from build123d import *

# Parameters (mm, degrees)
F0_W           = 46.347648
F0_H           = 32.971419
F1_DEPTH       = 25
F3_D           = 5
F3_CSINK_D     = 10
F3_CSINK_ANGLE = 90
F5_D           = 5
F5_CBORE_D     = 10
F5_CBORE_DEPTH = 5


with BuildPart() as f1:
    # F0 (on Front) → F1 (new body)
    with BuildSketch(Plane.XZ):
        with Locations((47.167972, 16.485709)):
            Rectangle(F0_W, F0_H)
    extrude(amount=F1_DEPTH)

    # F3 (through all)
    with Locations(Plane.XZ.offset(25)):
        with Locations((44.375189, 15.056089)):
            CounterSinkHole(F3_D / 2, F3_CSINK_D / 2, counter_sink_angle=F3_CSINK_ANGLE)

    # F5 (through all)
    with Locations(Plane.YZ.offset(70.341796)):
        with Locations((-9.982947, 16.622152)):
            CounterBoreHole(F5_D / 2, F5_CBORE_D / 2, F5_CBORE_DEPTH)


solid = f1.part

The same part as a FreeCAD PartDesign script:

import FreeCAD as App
import Part
import Sketcher
from FreeCAD import Vector
Q = App.Units.Quantity


def add_polygon(sketch, points):
    """Adds a closed chain of lines whose ends are joined by coincident constraints."""
    first, n = sketch.GeometryCount, len(points)
    for a, b in zip(points, points[1:] + points[:1]):
        sketch.addGeometry(Part.LineSegment(App.Vector(*a, 0), App.Vector(*b, 0)), False)
    for i in range(n):
        sketch.addConstraint(Sketcher.Constraint("Coincident", first + i, 2, first + (i + 1) % n, 1))

doc = App.newDocument("Part")
body = doc.addObject("PartDesign::Body", "Body")

sketch1 = body.newObject("Sketcher::SketchObject", "Sketch")
sketch1.AttachmentSupport = (doc.getObject("XZ_Plane"), [""])
sketch1.MapMode = "FlatFace"
add_polygon(sketch1, [(24, 33), (24, 0), (70, 0), (70, 33)])
sketch1.addConstraint(Sketcher.Constraint("Vertical", 0))
sketch1.addConstraint(Sketcher.Constraint("Horizontal", 1))
sketch1.addConstraint(Sketcher.Constraint("Vertical", 2))
sketch1.addConstraint(Sketcher.Constraint("Horizontal", 3))
sketch1.addConstraint(Sketcher.Constraint("PointOnObject", 0, 2, -1))
sketch1.addConstraint(Sketcher.Constraint("DistanceX", 1, 1, 1, 2, Q("46.347648 mm")))
sketch1.addConstraint(Sketcher.Constraint("DistanceY", 0, 2, 0, 1, Q("32.971419 mm")))
sketch1.addConstraint(Sketcher.Constraint("DistanceX", -1, 1, 0, 2, Q("23.994148 mm")))
pad1 = body.newObject("PartDesign::Pad", "Pad")
pad1.Profile = sketch1
pad1.Length = 25

sketch2 = body.newObject("Sketcher::SketchObject", "Sketch001")
sketch2.AttachmentSupport = (doc.getObject("XZ_Plane"), [""])
sketch2.MapMode = "FlatFace"
sketch2.AttachmentOffset = App.Placement(Vector(0, 0, 25), App.Rotation())
sketch2.addGeometry(Part.Circle(Vector(44.4, 15.1, 0), Vector(0, 0, 1), 2.5), False)
sketch2.addConstraint(Sketcher.Constraint("Diameter", 0, Q("5 mm")))
sketch2.addConstraint(Sketcher.Constraint("DistanceX", -1, 1, 0, 3, Q("44.375189 mm")))
sketch2.addConstraint(Sketcher.Constraint("DistanceY", -1, 1, 0, 3, Q("15.056089 mm")))
doc.recompute()
hole = body.newObject("PartDesign::Hole", "Hole")
hole.Profile = sketch2
hole.ThreadType = "None"
hole.Diameter = 5
hole.DepthType = "ThroughAll"
hole.HoleCutType = "Countersink"
hole.HoleCutDiameter = 10
hole.HoleCutCountersinkAngle = 90

sketch3 = body.newObject("Sketcher::SketchObject", "Sketch002")
sketch3.AttachmentSupport = (doc.getObject("YZ_Plane"), [""])
sketch3.MapMode = "FlatFace"
sketch3.AttachmentOffset = App.Placement(Vector(0, 0, 70.341796), App.Rotation())
sketch3.addGeometry(Part.Circle(Vector(-10, 16.6, 0), Vector(0, 0, 1), 2.5), False)
sketch3.addConstraint(Sketcher.Constraint("Diameter", 0, Q("5 mm")))
sketch3.addConstraint(Sketcher.Constraint("DistanceY", -1, 1, 0, 3, Q("16.622152 mm")))
sketch3.addConstraint(Sketcher.Constraint("DistanceX", 0, 3, -1, 1, Q("9.982947 mm")))
doc.recompute()
hole2 = body.newObject("PartDesign::Hole", "Hole001")
hole2.Profile = sketch3
hole2.ThreadType = "None"
hole2.Diameter = 5
hole2.DepthType = "ThroughAll"
hole2.HoleCutType = "Counterbore"
hole2.HoleCutDiameter = 10
hole2.HoleCutDepth = 5

doc.recompute()
